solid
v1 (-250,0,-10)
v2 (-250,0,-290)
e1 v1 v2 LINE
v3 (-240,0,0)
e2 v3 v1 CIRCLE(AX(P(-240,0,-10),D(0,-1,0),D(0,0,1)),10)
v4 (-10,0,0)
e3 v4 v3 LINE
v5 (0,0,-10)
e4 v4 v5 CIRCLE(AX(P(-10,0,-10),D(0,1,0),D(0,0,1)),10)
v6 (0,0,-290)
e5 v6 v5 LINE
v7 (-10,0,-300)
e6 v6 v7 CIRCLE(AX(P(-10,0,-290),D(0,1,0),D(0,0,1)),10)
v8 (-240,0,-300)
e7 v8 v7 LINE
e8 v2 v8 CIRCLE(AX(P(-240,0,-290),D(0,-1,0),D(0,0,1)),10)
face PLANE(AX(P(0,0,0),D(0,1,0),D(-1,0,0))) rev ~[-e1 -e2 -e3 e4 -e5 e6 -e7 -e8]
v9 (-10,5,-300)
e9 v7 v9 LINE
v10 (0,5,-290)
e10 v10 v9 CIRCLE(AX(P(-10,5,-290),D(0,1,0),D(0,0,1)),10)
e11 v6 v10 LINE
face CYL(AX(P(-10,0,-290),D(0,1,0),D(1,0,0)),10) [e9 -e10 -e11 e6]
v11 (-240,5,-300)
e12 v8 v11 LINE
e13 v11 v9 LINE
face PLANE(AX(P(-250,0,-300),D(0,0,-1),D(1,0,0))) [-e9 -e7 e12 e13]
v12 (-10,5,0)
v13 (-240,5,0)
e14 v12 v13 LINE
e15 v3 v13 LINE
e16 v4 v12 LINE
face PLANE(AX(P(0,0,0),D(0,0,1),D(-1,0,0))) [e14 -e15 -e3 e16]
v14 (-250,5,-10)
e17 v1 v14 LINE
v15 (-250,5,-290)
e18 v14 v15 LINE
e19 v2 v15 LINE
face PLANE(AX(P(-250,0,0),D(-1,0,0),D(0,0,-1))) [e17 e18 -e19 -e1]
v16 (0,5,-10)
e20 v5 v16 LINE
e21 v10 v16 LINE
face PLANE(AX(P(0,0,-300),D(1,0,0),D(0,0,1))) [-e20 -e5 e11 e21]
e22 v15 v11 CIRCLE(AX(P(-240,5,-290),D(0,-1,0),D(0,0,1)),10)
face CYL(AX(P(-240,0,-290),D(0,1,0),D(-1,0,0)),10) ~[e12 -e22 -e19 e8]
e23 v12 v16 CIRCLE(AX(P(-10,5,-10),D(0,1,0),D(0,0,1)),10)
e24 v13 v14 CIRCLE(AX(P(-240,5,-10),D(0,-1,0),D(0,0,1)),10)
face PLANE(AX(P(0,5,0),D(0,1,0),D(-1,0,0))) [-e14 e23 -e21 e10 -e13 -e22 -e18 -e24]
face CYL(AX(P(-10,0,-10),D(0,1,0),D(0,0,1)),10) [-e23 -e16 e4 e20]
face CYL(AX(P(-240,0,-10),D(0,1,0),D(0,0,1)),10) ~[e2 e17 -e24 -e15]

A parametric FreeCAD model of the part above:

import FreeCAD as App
import Part
import Sketcher
Q = App.Units.Quantity


def edges_at(feature, points):
    """Names of the edges that pass closest to the given points."""
    edges = feature.Shape.Edges
    near = lambda p: min(range(len(edges)), key=lambda i: edges[i].distToShape(Part.Vertex(*p))[0])
    return sorted({f"Edge{near(p) + 1}" for p in points})

doc = App.newDocument("Part")
body = doc.addObject("PartDesign::Body", "Body")

# Sketch on XZ plane
sketch1 = body.newObject("Sketcher::SketchObject", "Sketch")
sketch1.AttachmentSupport = (doc.getObject("XZ_Plane"), [""])
sketch1.MapMode = "FlatFace"
sketch1.addGeometry([
    Part.LineSegment(App.Vector(-250, 0, 0), App.Vector(0, 0, 0)),
    Part.LineSegment(App.Vector(0, 0, 0), App.Vector(0, -300, 0)),
    Part.LineSegment(App.Vector(0, -300, 0), App.Vector(-250, -300, 0)),
    Part.LineSegment(App.Vector(-250, -300, 0), App.Vector(-250, 0, 0)),
], False)
sketch1.addConstraint([
    Sketcher.Constraint("Coincident", 0, 2, 1, 1),
    Sketcher.Constraint("Coincident", 1, 2, 2, 1),
    Sketcher.Constraint("Coincident", 2, 2, 3, 1),
    Sketcher.Constraint("Coincident", 3, 2, 0, 1),
    Sketcher.Constraint("Horizontal", 0),
    Sketcher.Constraint("Vertical", 1),
    Sketcher.Constraint("Horizontal", 2),
    Sketcher.Constraint("Vertical", 3),
    Sketcher.Constraint("Coincident", 0, 2, -1, 1),
    Sketcher.Constraint("DistanceX", 0, 1, 0, 2, Q("250 mm")),
    Sketcher.Constraint("DistanceY", 1, 2, 1, 1, Q("300 mm")),
])
pad1 = body.newObject("PartDesign::Pad", "Pad")
pad1.Profile = sketch1
pad1.Length = 5
pad1.Reversed = True
doc.recompute()

fillet = body.newObject("PartDesign::Fillet", "Fillet")
fillet.Base = (pad1, edges_at(pad1, [(-250, 2.5, 0)]))
fillet.Radius = 10
doc.recompute()

fillet2 = body.newObject("PartDesign::Fillet", "Fillet001")
fillet2.Base = (fillet, edges_at(fillet, [(0, 2.5, 0), (0, 2.5, -300), (-250, 2.5, -300)]))
fillet2.Radius = 10

doc.recompute()
